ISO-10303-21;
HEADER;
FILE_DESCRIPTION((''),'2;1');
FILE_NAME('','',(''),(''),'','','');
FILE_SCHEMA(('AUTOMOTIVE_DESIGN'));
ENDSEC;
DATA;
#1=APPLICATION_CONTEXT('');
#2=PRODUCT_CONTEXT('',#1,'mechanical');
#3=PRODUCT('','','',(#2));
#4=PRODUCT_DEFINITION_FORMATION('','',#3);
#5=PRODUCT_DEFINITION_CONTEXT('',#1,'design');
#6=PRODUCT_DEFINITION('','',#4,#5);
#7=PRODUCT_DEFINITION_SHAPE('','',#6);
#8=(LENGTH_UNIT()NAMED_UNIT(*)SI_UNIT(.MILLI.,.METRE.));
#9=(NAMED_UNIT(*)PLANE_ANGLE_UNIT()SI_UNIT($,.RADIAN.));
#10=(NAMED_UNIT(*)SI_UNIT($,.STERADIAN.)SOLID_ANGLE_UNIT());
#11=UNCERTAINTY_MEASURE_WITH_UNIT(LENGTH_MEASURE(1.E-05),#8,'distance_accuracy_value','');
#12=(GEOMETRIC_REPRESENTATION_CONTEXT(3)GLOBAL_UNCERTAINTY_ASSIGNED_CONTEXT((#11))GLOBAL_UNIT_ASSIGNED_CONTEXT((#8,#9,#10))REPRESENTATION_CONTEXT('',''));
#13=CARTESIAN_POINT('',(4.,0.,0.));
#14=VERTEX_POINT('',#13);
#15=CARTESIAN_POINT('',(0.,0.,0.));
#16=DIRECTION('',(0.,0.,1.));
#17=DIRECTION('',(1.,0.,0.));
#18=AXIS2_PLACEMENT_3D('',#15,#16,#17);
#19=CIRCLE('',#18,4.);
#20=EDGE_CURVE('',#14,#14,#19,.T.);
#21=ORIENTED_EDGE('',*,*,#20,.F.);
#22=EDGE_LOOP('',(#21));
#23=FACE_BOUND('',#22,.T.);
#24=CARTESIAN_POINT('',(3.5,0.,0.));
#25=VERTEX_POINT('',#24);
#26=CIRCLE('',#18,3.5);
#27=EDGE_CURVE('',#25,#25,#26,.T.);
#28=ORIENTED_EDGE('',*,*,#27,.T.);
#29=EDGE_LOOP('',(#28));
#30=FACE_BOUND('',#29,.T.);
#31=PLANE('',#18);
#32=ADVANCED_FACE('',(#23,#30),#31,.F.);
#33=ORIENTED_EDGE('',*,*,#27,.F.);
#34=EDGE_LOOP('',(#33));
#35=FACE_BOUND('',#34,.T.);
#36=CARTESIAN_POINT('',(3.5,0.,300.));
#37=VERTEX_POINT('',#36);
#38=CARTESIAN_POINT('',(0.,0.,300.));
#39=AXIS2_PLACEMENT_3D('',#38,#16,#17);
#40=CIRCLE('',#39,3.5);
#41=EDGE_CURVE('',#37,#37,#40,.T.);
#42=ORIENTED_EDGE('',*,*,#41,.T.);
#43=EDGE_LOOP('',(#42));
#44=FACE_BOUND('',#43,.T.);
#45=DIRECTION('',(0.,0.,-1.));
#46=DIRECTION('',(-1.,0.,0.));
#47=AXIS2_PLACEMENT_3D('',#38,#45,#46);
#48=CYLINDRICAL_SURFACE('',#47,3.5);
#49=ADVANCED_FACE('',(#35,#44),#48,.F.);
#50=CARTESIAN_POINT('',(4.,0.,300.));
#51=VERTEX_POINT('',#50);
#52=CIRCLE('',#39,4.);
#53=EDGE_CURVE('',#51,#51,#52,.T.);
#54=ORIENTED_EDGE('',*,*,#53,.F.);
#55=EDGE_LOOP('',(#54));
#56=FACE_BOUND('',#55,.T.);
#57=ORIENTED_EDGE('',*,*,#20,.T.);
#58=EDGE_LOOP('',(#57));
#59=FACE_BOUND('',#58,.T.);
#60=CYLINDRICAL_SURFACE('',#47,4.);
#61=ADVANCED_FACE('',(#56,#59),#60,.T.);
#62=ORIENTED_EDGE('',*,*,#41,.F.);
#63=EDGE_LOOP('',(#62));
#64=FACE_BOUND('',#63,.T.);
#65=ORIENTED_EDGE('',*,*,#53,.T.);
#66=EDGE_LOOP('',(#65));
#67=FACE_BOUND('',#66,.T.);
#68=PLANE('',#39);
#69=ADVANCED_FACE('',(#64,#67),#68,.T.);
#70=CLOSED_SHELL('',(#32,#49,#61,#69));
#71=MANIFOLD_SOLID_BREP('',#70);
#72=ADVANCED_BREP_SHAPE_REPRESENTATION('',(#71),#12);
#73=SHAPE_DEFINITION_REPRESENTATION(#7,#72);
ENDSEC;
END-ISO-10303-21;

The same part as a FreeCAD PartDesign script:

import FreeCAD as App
import Part
import Sketcher

doc = App.newDocument("Part")
body = doc.addObject("PartDesign::Body", "Body")

# Sketch on XY plane
sketch1 = body.newObject("Sketcher::SketchObject", "Sketch")
sketch1.AttachmentSupport = (doc.getObject("XY_Plane"), [""])
sketch1.MapMode = "FlatFace"
sketch1.addGeometry(Part.Circle(App.Vector(0, 0, 0), App.Vector(0, 0, 1), 4), False)
sketch1.addGeometry(Part.Circle(App.Vector(0, 0, 0), App.Vector(0, 0, 1), 3.5), False)
sketch1.addConstraint(Sketcher.Constraint("Coincident", 0, 3, -1, 1))
sketch1.addConstraint(Sketcher.Constraint("Coincident", 1, 3, -1, 1))
sketch1.addConstraint(Sketcher.Constraint("Diameter", 0, 8.0))
sketch1.addConstraint(Sketcher.Constraint("Diameter", 1, 7.0))
pad1 = body.newObject("PartDesign::Pad", "Pad")
pad1.Profile = sketch1
pad1.Length = 300

doc.recompute()
